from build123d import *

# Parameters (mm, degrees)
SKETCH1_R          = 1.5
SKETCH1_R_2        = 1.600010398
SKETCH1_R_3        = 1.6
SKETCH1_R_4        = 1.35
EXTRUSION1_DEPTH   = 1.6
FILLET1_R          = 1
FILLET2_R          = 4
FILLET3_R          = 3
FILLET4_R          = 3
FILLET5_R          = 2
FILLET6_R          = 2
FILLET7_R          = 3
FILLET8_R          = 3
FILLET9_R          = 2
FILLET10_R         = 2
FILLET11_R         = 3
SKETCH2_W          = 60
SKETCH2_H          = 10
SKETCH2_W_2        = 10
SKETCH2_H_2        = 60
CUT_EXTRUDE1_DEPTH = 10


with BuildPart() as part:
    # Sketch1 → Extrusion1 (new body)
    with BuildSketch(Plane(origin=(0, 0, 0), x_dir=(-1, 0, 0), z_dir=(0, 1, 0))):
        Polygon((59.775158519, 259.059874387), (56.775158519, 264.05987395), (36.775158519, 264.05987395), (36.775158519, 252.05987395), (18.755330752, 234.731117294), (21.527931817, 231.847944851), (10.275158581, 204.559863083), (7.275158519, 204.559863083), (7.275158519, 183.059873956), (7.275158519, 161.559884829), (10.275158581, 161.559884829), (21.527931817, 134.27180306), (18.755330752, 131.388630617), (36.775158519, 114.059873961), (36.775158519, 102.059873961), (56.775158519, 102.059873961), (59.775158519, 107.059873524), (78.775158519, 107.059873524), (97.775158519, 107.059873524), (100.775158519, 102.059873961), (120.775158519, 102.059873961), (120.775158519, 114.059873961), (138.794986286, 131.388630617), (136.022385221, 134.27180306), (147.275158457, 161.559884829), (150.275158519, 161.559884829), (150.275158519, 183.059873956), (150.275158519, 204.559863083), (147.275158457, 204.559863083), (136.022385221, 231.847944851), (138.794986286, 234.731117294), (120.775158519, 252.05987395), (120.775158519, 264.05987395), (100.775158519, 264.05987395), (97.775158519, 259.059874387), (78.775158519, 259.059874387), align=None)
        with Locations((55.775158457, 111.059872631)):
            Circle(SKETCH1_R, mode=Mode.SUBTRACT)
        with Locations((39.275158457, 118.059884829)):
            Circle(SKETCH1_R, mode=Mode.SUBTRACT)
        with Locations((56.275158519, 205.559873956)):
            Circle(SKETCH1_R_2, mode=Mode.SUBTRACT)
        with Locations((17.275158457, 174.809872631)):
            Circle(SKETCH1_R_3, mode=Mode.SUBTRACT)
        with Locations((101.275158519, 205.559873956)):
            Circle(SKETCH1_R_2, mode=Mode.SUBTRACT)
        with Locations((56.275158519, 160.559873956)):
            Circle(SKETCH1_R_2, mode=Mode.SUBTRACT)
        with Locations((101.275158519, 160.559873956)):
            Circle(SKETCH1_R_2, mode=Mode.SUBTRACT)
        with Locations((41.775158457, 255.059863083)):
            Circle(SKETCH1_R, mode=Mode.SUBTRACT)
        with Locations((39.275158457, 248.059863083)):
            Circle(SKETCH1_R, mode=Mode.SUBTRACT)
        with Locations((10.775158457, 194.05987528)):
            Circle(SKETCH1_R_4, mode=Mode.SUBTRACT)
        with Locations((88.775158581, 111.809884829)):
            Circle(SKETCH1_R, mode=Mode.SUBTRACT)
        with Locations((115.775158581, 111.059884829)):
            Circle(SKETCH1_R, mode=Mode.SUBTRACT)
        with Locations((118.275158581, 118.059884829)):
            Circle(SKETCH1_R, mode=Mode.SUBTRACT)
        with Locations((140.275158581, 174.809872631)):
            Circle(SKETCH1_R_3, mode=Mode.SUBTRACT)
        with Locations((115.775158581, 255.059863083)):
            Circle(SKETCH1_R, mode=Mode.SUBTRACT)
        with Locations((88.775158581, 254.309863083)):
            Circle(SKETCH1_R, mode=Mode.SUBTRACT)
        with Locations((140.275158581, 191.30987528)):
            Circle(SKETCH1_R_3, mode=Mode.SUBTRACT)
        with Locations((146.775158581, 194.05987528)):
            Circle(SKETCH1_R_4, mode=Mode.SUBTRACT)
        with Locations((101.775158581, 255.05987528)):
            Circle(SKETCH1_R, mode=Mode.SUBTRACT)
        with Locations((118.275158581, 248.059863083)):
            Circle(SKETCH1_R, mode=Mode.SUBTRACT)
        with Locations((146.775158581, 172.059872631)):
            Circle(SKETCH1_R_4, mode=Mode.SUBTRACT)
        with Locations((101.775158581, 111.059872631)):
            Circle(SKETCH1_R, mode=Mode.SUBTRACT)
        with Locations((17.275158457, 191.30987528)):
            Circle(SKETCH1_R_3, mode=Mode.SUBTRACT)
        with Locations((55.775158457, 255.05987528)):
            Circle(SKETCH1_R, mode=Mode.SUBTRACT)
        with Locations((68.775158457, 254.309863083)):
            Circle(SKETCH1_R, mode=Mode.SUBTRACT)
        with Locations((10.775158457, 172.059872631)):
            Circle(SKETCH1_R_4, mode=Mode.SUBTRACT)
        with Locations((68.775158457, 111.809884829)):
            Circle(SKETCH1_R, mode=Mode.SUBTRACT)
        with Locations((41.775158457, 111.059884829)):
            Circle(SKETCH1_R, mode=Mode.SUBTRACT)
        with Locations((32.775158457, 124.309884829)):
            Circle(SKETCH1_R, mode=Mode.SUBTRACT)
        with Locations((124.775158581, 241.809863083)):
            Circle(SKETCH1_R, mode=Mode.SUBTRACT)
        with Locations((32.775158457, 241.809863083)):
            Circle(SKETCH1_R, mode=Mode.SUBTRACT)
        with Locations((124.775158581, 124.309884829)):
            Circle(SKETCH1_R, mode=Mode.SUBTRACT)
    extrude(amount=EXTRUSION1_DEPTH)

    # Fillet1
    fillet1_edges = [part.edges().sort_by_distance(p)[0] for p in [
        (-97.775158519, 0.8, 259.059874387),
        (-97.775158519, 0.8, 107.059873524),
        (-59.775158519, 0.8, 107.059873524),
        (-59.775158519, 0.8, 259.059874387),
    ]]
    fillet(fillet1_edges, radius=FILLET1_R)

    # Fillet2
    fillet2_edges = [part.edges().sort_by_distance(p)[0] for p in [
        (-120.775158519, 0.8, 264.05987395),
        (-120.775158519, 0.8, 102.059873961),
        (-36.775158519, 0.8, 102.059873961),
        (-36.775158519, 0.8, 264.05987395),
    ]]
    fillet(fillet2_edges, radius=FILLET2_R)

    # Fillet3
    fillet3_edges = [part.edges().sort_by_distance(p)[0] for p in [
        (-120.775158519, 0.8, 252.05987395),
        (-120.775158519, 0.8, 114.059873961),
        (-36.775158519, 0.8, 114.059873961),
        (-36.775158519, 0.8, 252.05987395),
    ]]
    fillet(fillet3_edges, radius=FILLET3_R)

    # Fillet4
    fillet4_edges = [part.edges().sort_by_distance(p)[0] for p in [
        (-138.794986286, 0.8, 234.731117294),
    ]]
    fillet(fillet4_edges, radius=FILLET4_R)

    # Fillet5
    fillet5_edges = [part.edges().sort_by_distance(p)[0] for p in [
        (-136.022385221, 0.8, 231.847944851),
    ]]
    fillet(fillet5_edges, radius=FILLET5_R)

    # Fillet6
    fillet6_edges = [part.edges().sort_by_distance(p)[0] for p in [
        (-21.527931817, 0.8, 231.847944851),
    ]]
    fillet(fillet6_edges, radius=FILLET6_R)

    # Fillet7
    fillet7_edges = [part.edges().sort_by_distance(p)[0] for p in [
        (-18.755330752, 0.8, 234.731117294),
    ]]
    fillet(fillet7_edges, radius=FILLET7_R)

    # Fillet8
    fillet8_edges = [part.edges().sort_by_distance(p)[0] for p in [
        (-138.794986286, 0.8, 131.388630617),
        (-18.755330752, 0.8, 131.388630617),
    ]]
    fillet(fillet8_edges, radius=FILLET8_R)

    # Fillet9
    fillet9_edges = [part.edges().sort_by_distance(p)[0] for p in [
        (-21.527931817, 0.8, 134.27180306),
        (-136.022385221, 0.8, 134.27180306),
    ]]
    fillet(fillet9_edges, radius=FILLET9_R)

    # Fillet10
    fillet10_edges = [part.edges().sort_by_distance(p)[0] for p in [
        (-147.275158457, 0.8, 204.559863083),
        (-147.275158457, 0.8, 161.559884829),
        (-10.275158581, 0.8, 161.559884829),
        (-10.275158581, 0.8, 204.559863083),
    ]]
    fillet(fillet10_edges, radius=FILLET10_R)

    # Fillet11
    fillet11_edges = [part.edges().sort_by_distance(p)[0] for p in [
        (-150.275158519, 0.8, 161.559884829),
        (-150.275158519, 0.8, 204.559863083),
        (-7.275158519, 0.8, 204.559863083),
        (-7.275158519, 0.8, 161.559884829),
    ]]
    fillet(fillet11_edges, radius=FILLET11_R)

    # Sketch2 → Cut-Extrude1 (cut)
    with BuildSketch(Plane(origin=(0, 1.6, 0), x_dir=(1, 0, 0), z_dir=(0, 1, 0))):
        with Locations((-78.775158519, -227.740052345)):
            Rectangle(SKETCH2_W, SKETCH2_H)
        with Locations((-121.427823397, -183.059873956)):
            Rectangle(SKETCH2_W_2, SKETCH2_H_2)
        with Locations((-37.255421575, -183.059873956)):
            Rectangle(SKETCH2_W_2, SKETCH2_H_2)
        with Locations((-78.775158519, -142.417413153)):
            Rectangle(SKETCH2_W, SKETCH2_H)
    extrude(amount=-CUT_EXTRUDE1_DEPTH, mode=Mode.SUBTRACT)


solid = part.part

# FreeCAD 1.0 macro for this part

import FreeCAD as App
import Part
import Sketcher

V = App.Vector
Q = App.Units.Quantity


def edges_at(feature, points):
    """Names of the edges that pass closest to the given points."""
    edges = feature.Shape.Edges
    near = lambda p: min(range(len(edges)), key=lambda i: edges[i].distToShape(Part.Vertex(*p))[0])
    return sorted({f"Edge{near(p) + 1}" for p in points})


def add_polygon(sketch, points):
    """Adds a closed chain of lines whose ends are joined by coincident constraints."""
    first, n = sketch.GeometryCount, len(points)
    for a, b in zip(points, points[1:] + points[:1]):
        sketch.addGeometry(Part.LineSegment(App.Vector(*a, 0), App.Vector(*b, 0)), False)
    for i in range(n):
        sketch.addConstraint(Sketcher.Constraint("Coincident", first + i, 2, first + (i + 1) % n, 1))

doc = App.newDocument("Part")
body = doc.addObject("PartDesign::Body", "Body")

# Sketch on XZ plane
sketch1 = body.newObject("Sketcher::SketchObject", "Sketch")
sketch1.AttachmentSupport = (doc.getObject("XZ_Plane"), [""])
sketch1.MapMode = "FlatFace"
add_polygon(sketch1, [(-59.8, 259.1), (-56.8, 264.1), (-36.8, 264.1), (-36.8, 252.1), (-18.8, 234.7), (-21.5, 231.8), (-10.3, 204.6), (-7.3, 204.6), (-7.3, 161.6), (-10.3, 161.6), (-21.5, 134.3), (-18.8, 131.4), (-36.8, 114.1), (-36.8, 102.1), (-56.8, 102.1), (-59.8, 107.1), (-97.8, 107.1), (-100.8, 102.1), (-120.8, 102.1), (-120.8, 114.1), (-138.8, 131.4), (-136, 134.3), (-147.3, 161.6), (-150.3, 161.6), (-150.3, 204.6), (-147.3, 204.6), (-136, 231.8), (-138.8, 234.7), (-120.8, 252.1), (-120.8, 264.1), (-100.8, 264.1), (-97.8, 259.1)])  # lines 0-31
sketch1.addGeometry(Part.Circle(V(-41.8, 111.1, 0), V(0, 0, 1), 1.5), False)  # 32
sketch1.addGeometry(Part.Circle(V(-39.3, 118.1, 0), V(0, 0, 1), 1.5), False)  # 33
sketch1.addGeometry(Part.Circle(V(-32.8, 124.3, 0), V(0, 0, 1), 1.5), False)  # 34
sketch1.addGeometry(Part.Circle(V(-55.8, 111.1, 0), V(0, 0, 1), 1.5), False)  # 35
sketch1.addGeometry(Part.Circle(V(-68.8, 111.8, 0), V(0, 0, 1), 1.5), False)  # 36
sketch1.addGeometry(Part.Circle(V(-10.8, 172.1, 0), V(0, 0, 1), 1.4), False)  # 37
sketch1.addGeometry(Part.Circle(V(-17.3, 174.8, 0), V(0, 0, 1), 1.6), False)  # 38
sketch1.addGeometry(Part.Circle(V(-56.3, 160.6, 0), V(0, 0, 1), 1.6), False)  # 39
sketch1.addGeometry(Part.Circle(V(-88.8, 111.8, 0), V(0, 0, 1), 1.5), False)  # 40
sketch1.addGeometry(Part.Circle(V(-101.8, 111.1, 0), V(0, 0, 1), 1.5), False)  # 41
sketch1.addGeometry(Part.Circle(V(-115.8, 111.1, 0), V(0, 0, 1), 1.5), False)  # 42
sketch1.addGeometry(Part.Circle(V(-118.3, 118.1, 0), V(0, 0, 1), 1.5), False)  # 43
sketch1.addGeometry(Part.Circle(V(-124.8, 124.3, 0), V(0, 0, 1), 1.5), False)  # 44
sketch1.addGeometry(Part.Circle(V(-101.3, 160.6, 0), V(0, 0, 1), 1.6), False)  # 45
sketch1.addGeometry(Part.Circle(V(-146.8, 172.1, 0), V(0, 0, 1), 1.4), False)  # 46
sketch1.addGeometry(Part.Circle(V(-140.3, 174.8, 0), V(0, 0, 1), 1.6), False)  # 47
sketch1.addGeometry(Part.Circle(V(-17.3, 191.3, 0), V(0, 0, 1), 1.6), False)  # 48
sketch1.addGeometry(Part.Circle(V(-10.8, 194.1, 0), V(0, 0, 1), 1.4), False)  # 49
sketch1.addGeometry(Part.Circle(V(-56.3, 205.6, 0), V(0, 0, 1), 1.6), False)  # 50
sketch1.addGeometry(Part.Circle(V(-32.8, 241.8, 0), V(0, 0, 1), 1.5), False)  # 51
sketch1.addGeometry(Part.Circle(V(-39.3, 248.1, 0), V(0, 0, 1), 1.5), False)  # 52
sketch1.addGeometry(Part.Circle(V(-41.8, 255.1, 0), V(0, 0, 1), 1.5), False)  # 53
sketch1.addGeometry(Part.Circle(V(-55.8, 255.1, 0), V(0, 0, 1), 1.5), False)  # 54
sketch1.addGeometry(Part.Circle(V(-68.8, 254.3, 0), V(0, 0, 1), 1.5), False)  # 55
sketch1.addGeometry(Part.Circle(V(-101.3, 205.6, 0), V(0, 0, 1), 1.6), False)  # 56
sketch1.addGeometry(Part.Circle(V(-140.3, 191.3, 0), V(0, 0, 1), 1.6), False)  # 57
sketch1.addGeometry(Part.Circle(V(-146.8, 194.1, 0), V(0, 0, 1), 1.4), False)  # 58
sketch1.addGeometry(Part.Circle(V(-88.8, 254.3, 0), V(0, 0, 1), 1.5), False)  # 59
sketch1.addGeometry(Part.Circle(V(-101.8, 255.1, 0), V(0, 0, 1), 1.5), False)  # 60
sketch1.addGeometry(Part.Circle(V(-124.8, 241.8, 0), V(0, 0, 1), 1.5), False)  # 61
sketch1.addGeometry(Part.Circle(V(-118.3, 248.1, 0), V(0, 0, 1), 1.5), False)  # 62
sketch1.addGeometry(Part.Circle(V(-115.8, 255.1, 0), V(0, 0, 1), 1.5), False)  # 63
sketch1.addConstraint(Sketcher.Constraint("Horizontal", 1))
sketch1.addConstraint(Sketcher.Constraint("Vertical", 2))
sketch1.addConstraint(Sketcher.Constraint("Horizontal", 6))
sketch1.addConstraint(Sketcher.Constraint("Vertical", 7))
sketch1.addConstraint(Sketcher.Constraint("Horizontal", 8))
sketch1.addConstraint(Sketcher.Constraint("Vertical", 12))
sketch1.addConstraint(Sketcher.Constraint("Horizontal", 13))
sketch1.addConstraint(Sketcher.Constraint("Horizontal", 15))
sketch1.addConstraint(Sketcher.Constraint("Horizontal", 17))
sketch1.addConstraint(Sketcher.Constraint("Vertical", 18))
sketch1.addConstraint(Sketcher.Constraint("Horizontal", 22))
sketch1.addConstraint(Sketcher.Constraint("Vertical", 23))
sketch1.addConstraint(Sketcher.Constraint("Horizontal", 24))
sketch1.addConstraint(Sketcher.Constraint("Vertical", 28))
sketch1.addConstraint(Sketcher.Constraint("Horizontal", 29))
sketch1.addConstraint(Sketcher.Constraint("Horizontal", 31))
sketch1.addConstraint(Sketcher.Constraint("Equal", 32, 33))
sketch1.addConstraint(Sketcher.Constraint("Equal", 33, 34))
sketch1.addConstraint(Sketcher.Constraint("Equal", 34, 35))
sketch1.addConstraint(Sketcher.Constraint("Equal", 35, 36))
sketch1.addConstraint(Sketcher.Constraint("Equal", 36, 40))
sketch1.addConstraint(Sketcher.Constraint("Equal", 40, 41))
sketch1.addConstraint(Sketcher.Constraint("Equal", 41, 42))
sketch1.addConstraint(Sketcher.Constraint("Equal", 42, 43))
sketch1.addConstraint(Sketcher.Constraint("Equal", 43, 44))
sketch1.addConstraint(Sketcher.Constraint("Equal", 39, 45))
sketch1.addConstraint(Sketcher.Constraint("Equal", 37, 46))
sketch1.addConstraint(Sketcher.Constraint("Equal", 38, 47))
sketch1.addConstraint(Sketcher.Constraint("Equal", 47, 48))
sketch1.addConstraint(Sketcher.Constraint("Equal", 46, 49))
sketch1.addConstraint(Sketcher.Constraint("Equal", 45, 50))
sketch1.addConstraint(Sketcher.Constraint("Equal", 44, 51))
sketch1.addConstraint(Sketcher.Constraint("Equal", 51, 52))
sketch1.addConstraint(Sketcher.Constraint("Equal", 52, 53))
sketch1.addConstraint(Sketcher.Constraint("Equal", 53, 54))
sketch1.addConstraint(Sketcher.Constraint("Equal", 54, 55))
sketch1.addConstraint(Sketcher.Constraint("Equal", 50, 56))
sketch1.addConstraint(Sketcher.Constraint("Equal", 48, 57))
sketch1.addConstraint(Sketcher.Constraint("Equal", 49, 58))
sketch1.addConstraint(Sketcher.Constraint("Equal", 55, 59))
sketch1.addConstraint(Sketcher.Constraint("Equal", 59, 60))
sketch1.addConstraint(Sketcher.Constraint("Equal", 60, 61))
sketch1.addConstraint(Sketcher.Constraint("Equal", 61, 62))
sketch1.addConstraint(Sketcher.Constraint("Equal", 62, 63))
sketch1.addConstraint(Sketcher.Constraint("Perpendicular", 3, 4))
sketch1.addConstraint(Sketcher.Constraint("Perpendicular", 10, 11))
sketch1.addConstraint(Sketcher.Constraint("Parallel", 0, 16))
sketch1.addConstraint(Sketcher.Constraint("Perpendicular", 4, 19))
sketch1.addConstraint(Sketcher.Constraint("Perpendicular", 19, 20))
sketch1.addConstraint(Sketcher.Constraint("Parallel", 5, 21))
sketch1.addConstraint(Sketcher.Constraint("Parallel", 9, 25))
sketch1.addConstraint(Sketcher.Constraint("Perpendicular", 11, 26))
sketch1.addConstraint(Sketcher.Constraint("Perpendicular", 26, 27))
sketch1.addConstraint(Sketcher.Constraint("Parallel", 14, 30))
sketch1.addConstraint(Sketcher.Constraint("Horizontal", 36, 3, 40, 3))
sketch1.addConstraint(Sketcher.Constraint("Horizontal", 35, 3, 41, 3))
sketch1.addConstraint(Sketcher.Constraint("Horizontal", 32, 3, 42, 3))
sketch1.addConstraint(Sketcher.Constraint("Horizontal", 33, 3, 43, 3))
sketch1.addConstraint(Sketcher.Constraint("Horizontal", 34, 3, 44, 3))
sketch1.addConstraint(Sketcher.Constraint("Horizontal", 39, 3, 45, 3))
sketch1.addConstraint(Sketcher.Constraint("Horizontal", 37, 3, 46, 3))
sketch1.addConstraint(Sketcher.Constraint("Horizontal", 38, 3, 47, 3))
sketch1.addConstraint(Sketcher.Constraint("Horizontal", 50, 3, 56, 3))
sketch1.addConstraint(Sketcher.Constraint("Horizontal", 48, 3, 57, 3))
sketch1.addConstraint(Sketcher.Constraint("Horizontal", 49, 3, 58, 3))
sketch1.addConstraint(Sketcher.Constraint("Horizontal", 55, 3, 59, 3))
sketch1.addConstraint(Sketcher.Constraint("Horizontal", 54, 3, 60, 3))
sketch1.addConstraint(Sketcher.Constraint("Horizontal", 51, 3, 61, 3))
sketch1.addConstraint(Sketcher.Constraint("Horizontal", 52, 3, 62, 3))
sketch1.addConstraint(Sketcher.Constraint("Horizontal", 53, 3, 63, 3))
sketch1.addConstraint(Sketcher.Constraint("Horizontal", 13, 2, 16, 2))
sketch1.addConstraint(Sketcher.Constraint("Horizontal", 11, 2, 18, 2))
sketch1.addConstraint(Sketcher.Constraint("Horizontal", 10, 2, 19, 2))
sketch1.addConstraint(Sketcher.Constraint("Horizontal", 9, 2, 20, 2))
sketch1.addConstraint(Sketcher.Constraint("Horizontal", 8, 2, 21, 2))
sketch1.addConstraint(Sketcher.Constraint("Horizontal", 6, 2, 23, 2))
sketch1.addConstraint(Sketcher.Constraint("Horizontal", 4, 2, 25, 2))
sketch1.addConstraint(Sketcher.Constraint("Horizontal", 3, 2, 26, 2))
sketch1.addConstraint(Sketcher.Constraint("Horizontal", 2, 2, 27, 2))
sketch1.addConstraint(Sketcher.Constraint("Horizontal", 1, 2, 28, 2))
sketch1.addConstraint(Sketcher.Constraint("Vertical", 38, 3, 48, 3))
sketch1.addConstraint(Sketcher.Constraint("Vertical", 37, 3, 49, 3))
sketch1.addConstraint(Sketcher.Constraint("Vertical", 39, 3, 50, 3))
sketch1.addConstraint(Sketcher.Constraint("Vertical", 34, 3, 51, 3))
sketch1.addConstraint(Sketcher.Constraint("Vertical", 33, 3, 52, 3))
sketch1.addConstraint(Sketcher.Constraint("Vertical", 32, 3, 53, 3))
sketch1.addConstraint(Sketcher.Constraint("Vertical", 35, 3, 54, 3))
sketch1.addConstraint(Sketcher.Constraint("Vertical", 36, 3, 55, 3))
sketch1.addConstraint(Sketcher.Constraint("Vertical", 45, 3, 56, 3))
sketch1.addConstraint(Sketcher.Constraint("Vertical", 47, 3, 57, 3))
sketch1.addConstraint(Sketcher.Constraint("Vertical", 46, 3, 58, 3))
sketch1.addConstraint(Sketcher.Constraint("Vertical", 40, 3, 59, 3))
sketch1.addConstraint(Sketcher.Constraint("Vertical", 41, 3, 60, 3))
sketch1.addConstraint(Sketcher.Constraint("Vertical", 44, 3, 61, 3))
sketch1.addConstraint(Sketcher.Constraint("Vertical", 43, 3, 62, 3))
sketch1.addConstraint(Sketcher.Constraint("Vertical", 42, 3, 63, 3))
sketch1.addConstraint(Sketcher.Constraint("Vertical", 5, 2, 8, 2))
sketch1.addConstraint(Sketcher.Constraint("Vertical", 4, 2, 9, 2))
sketch1.addConstraint(Sketcher.Constraint("Vertical", 3, 2, 10, 2))
sketch1.addConstraint(Sketcher.Constraint("Vertical", 2, 2, 11, 2))
sketch1.addConstraint(Sketcher.Constraint("Vertical", 0, 2, 13, 2))
sketch1.addConstraint(Sketcher.Constraint("Vertical", 21, 2, 24, 2))
sketch1.addConstraint(Sketcher.Constraint("Vertical", 20, 2, 25, 2))
sketch1.addConstraint(Sketcher.Constraint("Vertical", 19, 2, 26, 2))
sketch1.addConstraint(Sketcher.Constraint("Vertical", 16, 2, 29, 2))
sketch1.addConstraint(Sketcher.Constraint("Vertical", 15, 2, 30, 2))
sketch1.addConstraint(Sketcher.Constraint("Vertical", 14, 2, 31, 2))
sketch1.addConstraint(Sketcher.Constraint("Equal", 13, 17))
sketch1.addConstraint(Sketcher.Constraint("Equal", 8, 22))
sketch1.addConstraint(Sketcher.Constraint("Equal", 2, 12))
sketch1.addConstraint(Sketcher.Constraint("Diameter", 32, Q("3 mm")))
sketch1.addConstraint(Sketcher.Constraint("Diameter", 37, Q("2.7 mm")))
sketch1.addConstraint(Sketcher.Constraint("Diameter", 38, Q("3.2 mm")))
sketch1.addConstraint(Sketcher.Constraint("DistanceX", 1, 1, 1, 2, Q("20 mm")))
sketch1.addConstraint(Sketcher.Constraint("DistanceX", 6, 1, 6, 2, Q("3 mm")))
sketch1.addConstraint(Sketcher.Constraint("DistanceX", 15, 2, 15, 1, Q("38 mm")))
sketch1.addConstraint(Sketcher.Constraint("DistanceY", 2, 2, 2, 1, Q("12 mm")))
sketch1.addConstraint(Sketcher.Constraint("Distance", 3, Q("25 mm")))
sketch1.addConstraint(Sketcher.Constraint("Distance", 4, Q("4 mm")))
sketch1.addConstraint(Sketcher.Constraint("Angle", 3, Q("-43.88 deg")))
sketch1.addConstraint(Sketcher.Constraint("Diameter", 39, Q("3.200021 mm")))
sketch1.addConstraint(Sketcher.Constraint("DistanceY", 7, 2, 7, 1, Q("42.999978 mm")))
sketch1.addConstraint(Sketcher.Constraint("Distance", 0, Q("5.830952 mm")))
sketch1.addConstraint(Sketcher.Constraint("DistanceX", 32, 3, -1, 1, Q("41.775158 mm")))
sketch1.addConstraint(Sketcher.Constraint("DistanceX", 33, 3, -1, 1, Q("39.275158 mm")))
sketch1.addConstraint(Sketcher.Constraint("DistanceX", 34, 3, -1, 1, Q("32.775158 mm")))
sketch1.addConstraint(Sketcher.Constraint("DistanceX", 35, 3, -1, 1, Q("55.775158 mm")))
sketch1.addConstraint(Sketcher.Constraint("DistanceX", 36, 3, -1, 1, Q("68.775158 mm")))
sketch1.addConstraint(Sketcher.Constraint("DistanceX", 37, 3, -1, 1, Q("10.775158 mm")))
sketch1.addConstraint(Sketcher.Constraint("DistanceX", 38, 3, -1, 1, Q("17.275158 mm")))
sketch1.addConstraint(Sketcher.Constraint("DistanceX", 39, 3, -1, 1, Q("56.275159 mm")))
sketch1.addConstraint(Sketcher.Constraint("DistanceX", 40, 3, -1, 1, Q("88.775159 mm")))
sketch1.addConstraint(Sketcher.Constraint("DistanceX", 41, 3, -1, 1, Q("101.775159 mm")))
sketch1.addConstraint(Sketcher.Constraint("DistanceX", 42, 3, -1, 1, Q("115.775159 mm")))
sketch1.addConstraint(Sketcher.Constraint("DistanceX", 43, 3, -1, 1, Q("118.275159 mm")))
sketch1.addConstraint(Sketcher.Constraint("DistanceX", 44, 3, -1, 1, Q("124.775159 mm")))
sketch1.addConstraint(Sketcher.Constraint("DistanceX", 45, 3, -1, 1, Q("101.275159 mm")))
sketch1.addConstraint(Sketcher.Constraint("DistanceX", 46, 3, -1, 1, Q("146.775159 mm")))
sketch1.addConstraint(Sketcher.Constraint("DistanceX", 47, 3, -1, 1, Q("140.275159 mm")))
sketch1.addConstraint(Sketcher.Constraint("DistanceX", 0, 2, -1, 1, Q("56.775159 mm")))
sketch1.addConstraint(Sketcher.Constraint("DistanceX", 5, 2, -1, 1, Q("10.275159 mm")))
sketch1.addConstraint(Sketcher.Constraint("DistanceY", -1, 1, 10, 2, Q("131.388631 mm")))
sketch1.addConstraint(Sketcher.Constraint("DistanceX", 14, 2, -1, 1, Q("59.775159 mm")))
sketch1.addConstraint(Sketcher.Constraint("Distance", 5, Q("29.517187 mm")))
sketch1.addConstraint(Sketcher.Constraint("DistanceY", -1, 1, 32, 3, Q("111.059885 mm")))
sketch1.addConstraint(Sketcher.Constraint("DistanceY", -1, 1, 33, 3, Q("118.059885 mm")))
sketch1.addConstraint(Sketcher.Constraint("DistanceY", -1, 1, 34, 3, Q("124.309885 mm")))
sketch1.addConstraint(Sketcher.Constraint("DistanceY", -1, 1, 35, 3, Q("111.059873 mm")))
sketch1.addConstraint(Sketcher.Constraint("DistanceY", -1, 1, 36, 3, Q("111.809885 mm")))
sketch1.addConstraint(Sketcher.Constraint("DistanceY", -1, 1, 37, 3, Q("172.059873 mm")))
sketch1.addConstraint(Sketcher.Constraint("DistanceY", -1, 1, 38, 3, Q("174.809873 mm")))
sketch1.addConstraint(Sketcher.Constraint("DistanceY", -1, 1, 39, 3, Q("160.559874 mm")))
sketch1.addConstraint(Sketcher.Constraint("DistanceY", -1, 1, 48, 3, Q("191.309875 mm")))
sketch1.addConstraint(Sketcher.Constraint("DistanceY", -1, 1, 49, 3, Q("194.059875 mm")))
sketch1.addConstraint(Sketcher.Constraint("DistanceY", -1, 1, 50, 3, Q("205.559874 mm")))
sketch1.addConstraint(Sketcher.Constraint("DistanceY", -1, 1, 51, 3, Q("241.809863 mm")))
sketch1.addConstraint(Sketcher.Constraint("DistanceY", -1, 1, 52, 3, Q("248.059863 mm")))
sketch1.addConstraint(Sketcher.Constraint("DistanceY", -1, 1, 53, 3, Q("255.059863 mm")))
sketch1.addConstraint(Sketcher.Constraint("DistanceY", -1, 1, 54, 3, Q("255.059875 mm")))
sketch1.addConstraint(Sketcher.Constraint("DistanceY", -1, 1, 55, 3, Q("254.309863 mm")))
pad1 = body.newObject("PartDesign::Pad", "Pad")
pad1.Profile = sketch1
pad1.Length = 1.6
pad1.Reversed = True
doc.recompute()

fillet = body.newObject("PartDesign::Fillet", "Fillet")
fillet.Base = (pad1, edges_at(pad1, [
    (-97.775, 0.8, 259.06),
    (-97.775, 0.8, 107.06),
    (-59.775, 0.8, 107.06),
    (-59.775, 0.8, 259.06),
]))
fillet.Radius = 1
doc.recompute()

fillet2 = body.newObject("PartDesign::Fillet", "Fillet001")
fillet2.Base = (fillet, edges_at(fillet, [
    (-120.775, 0.8, 264.06),
    (-120.775, 0.8, 102.06),
    (-36.775, 0.8, 102.06),
    (-36.775, 0.8, 264.06),
]))
fillet2.Radius = 4
doc.recompute()

fillet3 = body.newObject("PartDesign::Fillet", "Fillet002")
fillet3.Base = (fillet2, edges_at(fillet2, [
    (-120.775, 0.8, 252.06),
    (-120.775, 0.8, 114.06),
    (-36.775, 0.8, 114.06),
    (-36.775, 0.8, 252.06),
]))
fillet3.Radius = 3
doc.recompute()

fillet4 = body.newObject("PartDesign::Fillet", "Fillet003")
fillet4.Base = (fillet3, edges_at(fillet3, [(-138.795, 0.8, 234.731)]))
fillet4.Radius = 3
doc.recompute()

fillet5 = body.newObject("PartDesign::Fillet", "Fillet004")
fillet5.Base = (fillet4, edges_at(fillet4, [(-136.022, 0.8, 231.848)]))
fillet5.Radius = 2
doc.recompute()

fillet6 = body.newObject("PartDesign::Fillet", "Fillet005")
fillet6.Base = (fillet5, edges_at(fillet5, [(-21.528, 0.8, 231.848)]))
fillet6.Radius = 2
doc.recompute()

fillet7 = body.newObject("PartDesign::Fillet", "Fillet006")
fillet7.Base = (fillet6, edges_at(fillet6, [(-18.755, 0.8, 234.731)]))
fillet7.Radius = 3
doc.recompute()

fillet8 = body.newObject("PartDesign::Fillet", "Fillet007")
fillet8.Base = (fillet7, edges_at(fillet7, [(-138.795, 0.8, 131.389), (-18.755, 0.8, 131.389)]))
fillet8.Radius = 3
doc.recompute()

fillet9 = body.newObject("PartDesign::Fillet", "Fillet008")
fillet9.Base = (fillet8, edges_at(fillet8, [(-21.528, 0.8, 134.272), (-136.022, 0.8, 134.272)]))
fillet9.Radius = 2
doc.recompute()

fillet10 = body.newObject("PartDesign::Fillet", "Fillet009")
fillet10.Base = (fillet9, edges_at(fillet9, [
    (-147.275, 0.8, 204.56),
    (-147.275, 0.8, 161.56),
    (-10.275, 0.8, 161.56),
    (-10.275, 0.8, 204.56),
]))
fillet10.Radius = 2
doc.recompute()

fillet11 = body.newObject("PartDesign::Fillet", "Fillet010")
fillet11.Base = (fillet10, edges_at(fillet10, [
    (-150.275, 0.8, 161.56),
    (-150.275, 0.8, 204.56),
    (-7.275, 0.8, 204.56),
    (-7.275, 0.8, 161.56),
]))
fillet11.Radius = 3

# Sketch on XZ plane
sketch2 = body.newObject("Sketcher::SketchObject", "Sketch001")
sketch2.AttachmentSupport = (doc.getObject("XZ_Plane"), [""])
sketch2.MapMode = "FlatFace"
sketch2.AttachmentOffset = App.Placement(V(0, 0, -1.6), App.Rotation())
add_polygon(sketch2, [(-109, 223), (-109, 233), (-49, 233), (-49, 223)])  # lines 0-3
add_polygon(sketch2, [(-126, 153), (-126, 213), (-116, 213), (-116, 153)])  # lines 4-7
add_polygon(sketch2, [(-42, 153), (-42, 213), (-32, 213), (-32, 153)])  # lines 8-11
add_polygon(sketch2, [(-109, 137), (-109, 147), (-49, 147), (-49, 137)])  # lines 12-15
sketch2.addConstraint(Sketcher.Constraint("Vertical", 0))
sketch2.addConstraint(Sketcher.Constraint("Horizontal", 1))
sketch2.addConstraint(Sketcher.Constraint("Vertical", 2))
sketch2.addConstraint(Sketcher.Constraint("Horizontal", 3))
sketch2.addConstraint(Sketcher.Constraint("Vertical", 4))
sketch2.addConstraint(Sketcher.Constraint("Horizontal", 5))
sketch2.addConstraint(Sketcher.Constraint("Vertical", 6))
sketch2.addConstraint(Sketcher.Constraint("Horizontal", 7))
sketch2.addConstraint(Sketcher.Constraint("Vertical", 8))
sketch2.addConstraint(Sketcher.Constraint("Horizontal", 9))
sketch2.addConstraint(Sketcher.Constraint("Vertical", 10))
sketch2.addConstraint(Sketcher.Constraint("Horizontal", 11))
sketch2.addConstraint(Sketcher.Constraint("Vertical", 12))
sketch2.addConstraint(Sketcher.Constraint("Horizontal", 13))
sketch2.addConstraint(Sketcher.Constraint("Vertical", 14))
sketch2.addConstraint(Sketcher.Constraint("Horizontal", 15))
sketch2.addConstraint(Sketcher.Constraint("Horizontal", 5, 2, 8, 2))
sketch2.addConstraint(Sketcher.Constraint("Horizontal", 7, 2, 10, 2))
sketch2.addConstraint(Sketcher.Constraint("Vertical", 3, 2, 12, 2))
sketch2.addConstraint(Sketcher.Constraint("Vertical", 2, 2, 13, 2))
sketch2.addConstraint(Sketcher.Constraint("Equal", 7, 9))
sketch2.addConstraint(Sketcher.Constraint("Equal", 11, 0))
sketch2.addConstraint(Sketcher.Constraint("Equal", 15, 4))
sketch2.addConstraint(Sketcher.Constraint("Equal", 2, 12))
sketch2.addConstraint(Sketcher.Constraint("DistanceX", 1, 1, 1, 2, Q("60 mm")))
sketch2.addConstraint(Sketcher.Constraint("DistanceX", 5, 1, 5, 2, Q("10 mm")))
sketch2.addConstraint(Sketcher.Constraint("DistanceX", 5, 2, 8, 2, Q("74.172402 mm")))
sketch2.addConstraint(Sketcher.Constraint("DistanceX", 0, 2, -1, 1, Q("108.775159 mm")))
sketch2.addConstraint(Sketcher.Constraint("DistanceX", 8, 2, -1, 1, Q("42.255422 mm")))
sketch2.addConstraint(Sketcher.Constraint("DistanceY", 4, 2, 3, 2, Q("9.680178 mm")))
sketch2.addConstraint(Sketcher.Constraint("DistanceY", 12, 2, 6, 2, Q("5.642461 mm")))
sketch2.addConstraint(Sketcher.Constraint("DistanceY", -1, 1, 0, 2, Q("232.740052 mm")))
pocket1 = body.newObject("PartDesign::Pocket", "Pocket")
pocket1.Profile = sketch2
pocket1.Length = 10
pocket1.Reversed = True

doc.recompute()
